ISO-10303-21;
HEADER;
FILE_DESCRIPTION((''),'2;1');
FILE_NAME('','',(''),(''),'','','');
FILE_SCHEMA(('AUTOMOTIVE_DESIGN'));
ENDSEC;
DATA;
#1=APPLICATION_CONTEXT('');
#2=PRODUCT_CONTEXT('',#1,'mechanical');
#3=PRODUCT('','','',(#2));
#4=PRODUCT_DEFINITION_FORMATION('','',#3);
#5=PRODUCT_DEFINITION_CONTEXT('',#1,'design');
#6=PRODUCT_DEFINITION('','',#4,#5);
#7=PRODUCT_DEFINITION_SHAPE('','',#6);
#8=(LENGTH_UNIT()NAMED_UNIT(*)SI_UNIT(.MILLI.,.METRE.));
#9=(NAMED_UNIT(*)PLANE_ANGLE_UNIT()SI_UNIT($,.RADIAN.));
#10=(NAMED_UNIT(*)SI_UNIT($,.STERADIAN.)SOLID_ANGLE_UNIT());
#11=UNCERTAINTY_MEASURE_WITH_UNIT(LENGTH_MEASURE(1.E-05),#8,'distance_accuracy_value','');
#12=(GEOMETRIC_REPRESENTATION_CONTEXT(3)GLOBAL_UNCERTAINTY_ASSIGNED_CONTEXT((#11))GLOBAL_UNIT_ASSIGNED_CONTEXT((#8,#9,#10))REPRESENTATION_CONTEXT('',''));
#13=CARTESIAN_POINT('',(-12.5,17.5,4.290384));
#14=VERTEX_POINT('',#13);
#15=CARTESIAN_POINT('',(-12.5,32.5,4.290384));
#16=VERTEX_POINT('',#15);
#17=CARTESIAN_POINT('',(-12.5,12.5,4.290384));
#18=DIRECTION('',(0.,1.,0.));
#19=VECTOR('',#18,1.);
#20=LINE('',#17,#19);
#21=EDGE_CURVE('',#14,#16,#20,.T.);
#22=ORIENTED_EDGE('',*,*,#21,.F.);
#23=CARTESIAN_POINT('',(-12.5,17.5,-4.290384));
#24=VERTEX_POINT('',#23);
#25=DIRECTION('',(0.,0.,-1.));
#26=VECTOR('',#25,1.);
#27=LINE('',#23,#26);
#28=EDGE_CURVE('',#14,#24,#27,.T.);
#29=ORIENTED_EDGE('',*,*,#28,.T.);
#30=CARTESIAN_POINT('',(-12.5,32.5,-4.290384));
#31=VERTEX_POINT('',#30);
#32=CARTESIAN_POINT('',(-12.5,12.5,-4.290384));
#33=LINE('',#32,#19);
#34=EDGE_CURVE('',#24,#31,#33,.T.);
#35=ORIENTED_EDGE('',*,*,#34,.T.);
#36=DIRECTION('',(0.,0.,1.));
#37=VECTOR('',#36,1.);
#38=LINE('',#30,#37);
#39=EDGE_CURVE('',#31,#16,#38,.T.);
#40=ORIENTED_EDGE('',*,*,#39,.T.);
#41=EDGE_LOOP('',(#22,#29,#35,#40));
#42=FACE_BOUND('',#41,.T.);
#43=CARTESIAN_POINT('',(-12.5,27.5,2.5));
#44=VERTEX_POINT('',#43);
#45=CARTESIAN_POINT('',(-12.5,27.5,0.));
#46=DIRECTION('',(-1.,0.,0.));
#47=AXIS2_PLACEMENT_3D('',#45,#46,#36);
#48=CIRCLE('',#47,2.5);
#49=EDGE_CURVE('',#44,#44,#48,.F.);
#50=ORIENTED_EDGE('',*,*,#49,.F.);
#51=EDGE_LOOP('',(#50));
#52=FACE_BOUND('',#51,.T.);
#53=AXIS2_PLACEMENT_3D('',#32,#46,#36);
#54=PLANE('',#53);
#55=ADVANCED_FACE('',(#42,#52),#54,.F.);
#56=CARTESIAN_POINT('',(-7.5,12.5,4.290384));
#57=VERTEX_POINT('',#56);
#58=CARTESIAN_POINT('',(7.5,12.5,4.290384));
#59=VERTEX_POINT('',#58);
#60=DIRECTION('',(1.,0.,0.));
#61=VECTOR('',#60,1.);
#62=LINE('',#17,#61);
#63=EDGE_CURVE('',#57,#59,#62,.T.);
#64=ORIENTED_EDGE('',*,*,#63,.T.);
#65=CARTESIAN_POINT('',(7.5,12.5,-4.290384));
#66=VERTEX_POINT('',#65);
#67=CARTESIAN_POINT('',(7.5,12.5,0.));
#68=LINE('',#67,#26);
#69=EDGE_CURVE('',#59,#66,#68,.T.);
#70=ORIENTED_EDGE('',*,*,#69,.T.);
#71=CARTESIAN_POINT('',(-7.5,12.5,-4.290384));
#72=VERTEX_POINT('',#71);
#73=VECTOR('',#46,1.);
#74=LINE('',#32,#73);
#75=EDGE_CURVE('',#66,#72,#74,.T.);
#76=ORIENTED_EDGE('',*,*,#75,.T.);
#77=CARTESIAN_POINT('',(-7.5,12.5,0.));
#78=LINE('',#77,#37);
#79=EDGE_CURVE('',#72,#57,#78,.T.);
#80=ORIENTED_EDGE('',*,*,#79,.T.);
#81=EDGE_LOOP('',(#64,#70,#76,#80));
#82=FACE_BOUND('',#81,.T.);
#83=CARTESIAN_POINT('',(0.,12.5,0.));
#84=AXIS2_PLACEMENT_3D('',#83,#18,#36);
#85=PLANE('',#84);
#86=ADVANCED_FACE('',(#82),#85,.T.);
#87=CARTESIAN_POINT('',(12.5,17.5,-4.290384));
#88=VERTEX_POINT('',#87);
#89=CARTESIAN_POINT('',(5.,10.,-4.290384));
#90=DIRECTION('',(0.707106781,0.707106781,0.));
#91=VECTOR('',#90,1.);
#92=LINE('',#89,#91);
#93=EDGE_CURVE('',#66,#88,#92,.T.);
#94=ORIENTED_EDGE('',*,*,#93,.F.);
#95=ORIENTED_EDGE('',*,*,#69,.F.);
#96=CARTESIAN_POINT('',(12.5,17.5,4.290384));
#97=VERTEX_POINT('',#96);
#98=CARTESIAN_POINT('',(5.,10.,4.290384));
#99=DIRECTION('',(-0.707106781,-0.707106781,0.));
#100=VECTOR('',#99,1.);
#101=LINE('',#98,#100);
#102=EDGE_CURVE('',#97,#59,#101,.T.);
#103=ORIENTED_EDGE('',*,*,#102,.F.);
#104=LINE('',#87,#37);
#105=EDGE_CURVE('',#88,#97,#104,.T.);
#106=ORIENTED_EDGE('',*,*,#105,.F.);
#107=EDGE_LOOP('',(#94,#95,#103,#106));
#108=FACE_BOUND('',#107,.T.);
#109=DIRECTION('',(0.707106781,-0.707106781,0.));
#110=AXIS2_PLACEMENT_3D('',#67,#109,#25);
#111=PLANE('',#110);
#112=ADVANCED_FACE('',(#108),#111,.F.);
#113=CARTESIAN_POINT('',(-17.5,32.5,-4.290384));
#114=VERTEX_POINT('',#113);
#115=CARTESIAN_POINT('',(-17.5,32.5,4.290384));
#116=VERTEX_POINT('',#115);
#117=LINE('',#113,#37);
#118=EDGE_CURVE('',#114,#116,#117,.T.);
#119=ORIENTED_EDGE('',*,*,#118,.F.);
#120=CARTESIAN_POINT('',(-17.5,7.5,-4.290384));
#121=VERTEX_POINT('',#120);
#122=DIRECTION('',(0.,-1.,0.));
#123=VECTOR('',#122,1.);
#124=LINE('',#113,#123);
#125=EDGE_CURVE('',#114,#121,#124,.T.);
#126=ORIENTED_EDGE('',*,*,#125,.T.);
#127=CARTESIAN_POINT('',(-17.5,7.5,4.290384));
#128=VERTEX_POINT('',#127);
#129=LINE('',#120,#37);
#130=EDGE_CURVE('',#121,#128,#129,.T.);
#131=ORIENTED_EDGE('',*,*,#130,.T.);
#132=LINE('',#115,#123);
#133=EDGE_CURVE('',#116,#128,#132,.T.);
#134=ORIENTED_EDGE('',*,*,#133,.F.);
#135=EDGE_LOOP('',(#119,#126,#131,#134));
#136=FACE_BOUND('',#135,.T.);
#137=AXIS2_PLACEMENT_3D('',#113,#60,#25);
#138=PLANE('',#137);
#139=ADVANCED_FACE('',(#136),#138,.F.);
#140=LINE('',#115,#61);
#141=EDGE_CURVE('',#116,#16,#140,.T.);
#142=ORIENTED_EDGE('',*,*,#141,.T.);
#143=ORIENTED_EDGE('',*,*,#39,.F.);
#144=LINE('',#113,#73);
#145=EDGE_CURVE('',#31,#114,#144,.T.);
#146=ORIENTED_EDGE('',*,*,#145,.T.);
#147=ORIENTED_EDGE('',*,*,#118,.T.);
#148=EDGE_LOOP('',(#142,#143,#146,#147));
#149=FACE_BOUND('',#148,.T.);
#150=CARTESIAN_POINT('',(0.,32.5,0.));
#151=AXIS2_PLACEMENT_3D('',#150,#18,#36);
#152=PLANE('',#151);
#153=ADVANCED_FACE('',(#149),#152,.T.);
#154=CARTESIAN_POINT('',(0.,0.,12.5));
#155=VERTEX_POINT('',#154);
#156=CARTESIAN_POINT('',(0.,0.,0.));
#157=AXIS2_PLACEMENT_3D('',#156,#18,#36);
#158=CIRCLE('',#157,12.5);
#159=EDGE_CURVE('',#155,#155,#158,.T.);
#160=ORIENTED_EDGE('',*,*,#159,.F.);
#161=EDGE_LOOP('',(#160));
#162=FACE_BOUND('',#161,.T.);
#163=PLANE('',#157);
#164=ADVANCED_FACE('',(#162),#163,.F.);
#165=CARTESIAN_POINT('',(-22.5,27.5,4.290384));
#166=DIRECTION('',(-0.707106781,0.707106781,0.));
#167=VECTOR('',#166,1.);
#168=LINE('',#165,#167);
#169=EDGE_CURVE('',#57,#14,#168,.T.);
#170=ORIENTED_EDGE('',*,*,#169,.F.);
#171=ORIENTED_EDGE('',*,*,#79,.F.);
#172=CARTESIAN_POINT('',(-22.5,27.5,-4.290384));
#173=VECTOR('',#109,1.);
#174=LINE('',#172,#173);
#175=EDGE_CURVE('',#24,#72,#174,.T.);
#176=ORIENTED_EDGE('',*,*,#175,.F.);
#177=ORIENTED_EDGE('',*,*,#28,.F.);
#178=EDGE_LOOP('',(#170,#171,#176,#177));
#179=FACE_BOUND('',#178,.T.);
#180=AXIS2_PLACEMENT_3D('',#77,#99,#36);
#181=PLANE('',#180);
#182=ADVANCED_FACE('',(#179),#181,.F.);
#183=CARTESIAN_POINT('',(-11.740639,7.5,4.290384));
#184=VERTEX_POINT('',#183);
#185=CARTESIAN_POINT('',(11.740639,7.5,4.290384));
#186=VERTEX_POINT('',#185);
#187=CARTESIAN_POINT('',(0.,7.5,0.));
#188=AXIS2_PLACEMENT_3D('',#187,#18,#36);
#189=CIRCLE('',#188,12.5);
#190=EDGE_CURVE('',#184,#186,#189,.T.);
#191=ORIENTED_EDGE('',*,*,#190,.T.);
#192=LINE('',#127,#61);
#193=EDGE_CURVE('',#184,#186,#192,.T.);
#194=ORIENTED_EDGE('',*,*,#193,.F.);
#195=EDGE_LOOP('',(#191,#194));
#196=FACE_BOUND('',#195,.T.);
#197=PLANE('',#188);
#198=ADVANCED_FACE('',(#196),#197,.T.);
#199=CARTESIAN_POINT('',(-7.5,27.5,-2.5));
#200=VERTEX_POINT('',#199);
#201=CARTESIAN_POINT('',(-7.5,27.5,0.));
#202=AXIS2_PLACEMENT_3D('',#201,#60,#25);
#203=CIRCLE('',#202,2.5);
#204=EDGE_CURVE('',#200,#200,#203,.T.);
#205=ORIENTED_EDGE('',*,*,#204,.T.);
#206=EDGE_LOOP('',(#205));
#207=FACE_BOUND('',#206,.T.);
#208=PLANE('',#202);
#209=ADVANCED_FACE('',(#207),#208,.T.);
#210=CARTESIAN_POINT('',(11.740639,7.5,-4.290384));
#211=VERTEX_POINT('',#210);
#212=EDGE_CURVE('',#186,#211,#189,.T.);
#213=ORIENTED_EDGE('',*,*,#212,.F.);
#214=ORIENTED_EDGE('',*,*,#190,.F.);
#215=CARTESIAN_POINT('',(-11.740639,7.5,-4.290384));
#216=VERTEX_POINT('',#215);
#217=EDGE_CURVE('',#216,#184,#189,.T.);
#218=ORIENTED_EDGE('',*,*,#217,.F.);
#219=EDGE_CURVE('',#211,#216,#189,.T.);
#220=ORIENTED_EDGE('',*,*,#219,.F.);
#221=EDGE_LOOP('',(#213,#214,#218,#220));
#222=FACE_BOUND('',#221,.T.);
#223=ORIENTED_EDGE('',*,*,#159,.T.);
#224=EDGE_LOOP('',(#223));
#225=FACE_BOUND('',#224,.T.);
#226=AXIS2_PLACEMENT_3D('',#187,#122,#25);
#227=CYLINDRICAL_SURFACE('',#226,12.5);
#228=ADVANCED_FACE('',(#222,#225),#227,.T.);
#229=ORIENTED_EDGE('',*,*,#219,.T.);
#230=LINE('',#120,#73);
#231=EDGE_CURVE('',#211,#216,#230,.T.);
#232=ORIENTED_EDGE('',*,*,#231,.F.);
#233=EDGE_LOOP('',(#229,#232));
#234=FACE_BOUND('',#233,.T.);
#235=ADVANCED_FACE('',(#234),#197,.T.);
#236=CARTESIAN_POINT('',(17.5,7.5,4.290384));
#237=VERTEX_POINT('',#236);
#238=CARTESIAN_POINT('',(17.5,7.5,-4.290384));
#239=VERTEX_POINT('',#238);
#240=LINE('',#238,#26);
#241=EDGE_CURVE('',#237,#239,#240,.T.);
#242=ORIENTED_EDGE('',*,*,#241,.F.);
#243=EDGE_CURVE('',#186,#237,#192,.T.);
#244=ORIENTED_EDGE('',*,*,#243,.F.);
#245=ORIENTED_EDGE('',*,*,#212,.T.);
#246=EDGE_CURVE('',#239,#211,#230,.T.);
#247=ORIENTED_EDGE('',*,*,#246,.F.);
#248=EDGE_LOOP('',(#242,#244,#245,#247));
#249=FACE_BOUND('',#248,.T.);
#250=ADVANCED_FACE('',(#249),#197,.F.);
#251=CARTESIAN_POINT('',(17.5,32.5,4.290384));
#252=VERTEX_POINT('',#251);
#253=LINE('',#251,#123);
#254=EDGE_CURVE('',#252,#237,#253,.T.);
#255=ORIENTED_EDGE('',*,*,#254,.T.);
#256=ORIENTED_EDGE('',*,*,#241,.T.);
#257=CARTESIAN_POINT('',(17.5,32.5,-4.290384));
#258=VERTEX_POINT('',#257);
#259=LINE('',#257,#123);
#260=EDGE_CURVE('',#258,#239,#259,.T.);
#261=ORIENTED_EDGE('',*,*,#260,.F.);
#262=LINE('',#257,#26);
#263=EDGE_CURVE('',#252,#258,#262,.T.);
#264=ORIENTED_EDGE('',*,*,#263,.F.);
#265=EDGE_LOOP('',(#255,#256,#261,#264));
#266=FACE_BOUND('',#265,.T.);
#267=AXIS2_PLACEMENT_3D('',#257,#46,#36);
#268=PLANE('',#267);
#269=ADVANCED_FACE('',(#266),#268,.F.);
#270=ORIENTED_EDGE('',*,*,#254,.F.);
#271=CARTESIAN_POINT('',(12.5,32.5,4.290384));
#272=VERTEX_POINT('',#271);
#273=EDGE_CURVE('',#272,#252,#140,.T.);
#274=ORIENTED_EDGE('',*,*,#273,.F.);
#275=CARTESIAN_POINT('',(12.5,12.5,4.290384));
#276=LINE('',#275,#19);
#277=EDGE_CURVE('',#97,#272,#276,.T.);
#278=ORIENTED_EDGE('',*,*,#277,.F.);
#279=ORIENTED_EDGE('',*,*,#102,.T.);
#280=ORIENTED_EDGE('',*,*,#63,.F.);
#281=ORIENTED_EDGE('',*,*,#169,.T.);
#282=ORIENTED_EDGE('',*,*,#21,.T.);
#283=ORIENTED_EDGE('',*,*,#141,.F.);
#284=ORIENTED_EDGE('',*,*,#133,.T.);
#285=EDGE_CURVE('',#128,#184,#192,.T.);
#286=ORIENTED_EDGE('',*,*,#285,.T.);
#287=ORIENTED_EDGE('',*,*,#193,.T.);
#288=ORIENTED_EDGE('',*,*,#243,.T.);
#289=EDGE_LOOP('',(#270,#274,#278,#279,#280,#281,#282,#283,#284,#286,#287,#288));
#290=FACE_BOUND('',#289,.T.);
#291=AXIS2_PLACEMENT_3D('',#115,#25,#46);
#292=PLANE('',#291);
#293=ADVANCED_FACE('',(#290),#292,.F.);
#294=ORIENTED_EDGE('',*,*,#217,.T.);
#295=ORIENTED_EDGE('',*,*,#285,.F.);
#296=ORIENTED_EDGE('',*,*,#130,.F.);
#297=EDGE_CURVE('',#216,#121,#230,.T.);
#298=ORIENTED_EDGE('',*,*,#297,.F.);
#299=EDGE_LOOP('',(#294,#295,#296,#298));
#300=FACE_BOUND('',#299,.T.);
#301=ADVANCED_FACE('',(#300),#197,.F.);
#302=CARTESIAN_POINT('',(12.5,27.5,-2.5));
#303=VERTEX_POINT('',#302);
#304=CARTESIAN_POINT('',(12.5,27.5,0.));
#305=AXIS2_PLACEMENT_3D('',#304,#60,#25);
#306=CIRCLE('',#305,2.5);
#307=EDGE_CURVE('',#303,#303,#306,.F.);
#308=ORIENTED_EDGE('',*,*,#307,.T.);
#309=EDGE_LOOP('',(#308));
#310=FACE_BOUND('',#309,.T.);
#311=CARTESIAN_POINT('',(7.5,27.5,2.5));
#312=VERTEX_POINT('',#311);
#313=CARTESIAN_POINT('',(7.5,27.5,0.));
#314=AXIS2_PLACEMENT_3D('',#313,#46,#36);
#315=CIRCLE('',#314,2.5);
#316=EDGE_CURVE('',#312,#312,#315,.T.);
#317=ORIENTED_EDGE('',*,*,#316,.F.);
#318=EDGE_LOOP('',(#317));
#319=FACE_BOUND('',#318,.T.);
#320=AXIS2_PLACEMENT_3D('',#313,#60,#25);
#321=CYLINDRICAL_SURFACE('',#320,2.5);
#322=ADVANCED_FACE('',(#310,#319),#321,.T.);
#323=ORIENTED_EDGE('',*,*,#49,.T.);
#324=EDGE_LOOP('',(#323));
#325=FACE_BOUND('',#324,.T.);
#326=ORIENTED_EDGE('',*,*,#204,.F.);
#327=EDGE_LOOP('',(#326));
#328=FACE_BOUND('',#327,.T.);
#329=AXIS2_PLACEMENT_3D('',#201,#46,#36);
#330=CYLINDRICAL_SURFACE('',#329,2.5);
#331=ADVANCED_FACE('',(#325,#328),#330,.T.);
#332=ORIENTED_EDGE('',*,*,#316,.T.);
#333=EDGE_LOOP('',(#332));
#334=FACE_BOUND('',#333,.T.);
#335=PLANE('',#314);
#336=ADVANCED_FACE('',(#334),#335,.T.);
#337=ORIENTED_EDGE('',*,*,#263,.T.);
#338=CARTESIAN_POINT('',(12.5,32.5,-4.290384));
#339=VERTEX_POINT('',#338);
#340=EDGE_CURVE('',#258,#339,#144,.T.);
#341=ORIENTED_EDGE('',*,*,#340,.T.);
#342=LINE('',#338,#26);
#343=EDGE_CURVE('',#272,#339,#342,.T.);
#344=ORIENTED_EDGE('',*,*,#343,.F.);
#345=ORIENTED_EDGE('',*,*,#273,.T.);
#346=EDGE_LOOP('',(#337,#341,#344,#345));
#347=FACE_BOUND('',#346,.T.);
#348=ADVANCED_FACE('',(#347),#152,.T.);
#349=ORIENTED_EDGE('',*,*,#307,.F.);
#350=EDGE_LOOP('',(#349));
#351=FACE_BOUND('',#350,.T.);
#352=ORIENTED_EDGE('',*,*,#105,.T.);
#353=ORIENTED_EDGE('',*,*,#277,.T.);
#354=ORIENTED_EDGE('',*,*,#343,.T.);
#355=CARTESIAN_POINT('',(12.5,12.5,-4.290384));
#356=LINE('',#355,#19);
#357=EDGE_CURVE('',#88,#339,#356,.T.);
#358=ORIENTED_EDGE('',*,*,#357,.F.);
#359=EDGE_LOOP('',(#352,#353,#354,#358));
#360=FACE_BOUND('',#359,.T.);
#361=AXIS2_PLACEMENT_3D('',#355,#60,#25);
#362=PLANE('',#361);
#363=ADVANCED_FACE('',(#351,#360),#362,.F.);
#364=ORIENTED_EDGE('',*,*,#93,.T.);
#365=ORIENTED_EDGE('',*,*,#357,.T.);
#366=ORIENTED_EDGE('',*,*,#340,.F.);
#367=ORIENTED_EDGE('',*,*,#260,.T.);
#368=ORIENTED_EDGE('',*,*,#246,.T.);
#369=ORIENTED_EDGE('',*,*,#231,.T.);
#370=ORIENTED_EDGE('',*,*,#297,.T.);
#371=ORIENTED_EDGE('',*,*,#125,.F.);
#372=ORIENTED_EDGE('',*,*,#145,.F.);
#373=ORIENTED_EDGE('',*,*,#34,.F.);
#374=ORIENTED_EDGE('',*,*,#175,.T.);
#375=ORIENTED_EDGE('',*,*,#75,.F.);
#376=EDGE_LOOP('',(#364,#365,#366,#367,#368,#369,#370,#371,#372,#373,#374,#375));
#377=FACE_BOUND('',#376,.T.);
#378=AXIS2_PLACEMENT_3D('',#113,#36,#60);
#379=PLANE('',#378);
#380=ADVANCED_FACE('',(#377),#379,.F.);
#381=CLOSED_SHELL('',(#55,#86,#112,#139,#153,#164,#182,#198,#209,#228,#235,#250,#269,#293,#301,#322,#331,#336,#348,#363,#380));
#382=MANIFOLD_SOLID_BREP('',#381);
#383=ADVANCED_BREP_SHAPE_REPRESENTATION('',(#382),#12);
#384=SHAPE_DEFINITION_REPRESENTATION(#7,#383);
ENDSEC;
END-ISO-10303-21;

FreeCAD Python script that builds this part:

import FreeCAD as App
import Part
import Sketcher
from FreeCAD import Vector
Q = App.Units.Quantity


def edges_at(feature, points):
    """Names of the edges that pass closest to the given points."""
    edges = feature.Shape.Edges
    near = lambda p: min(range(len(edges)), key=lambda i: edges[i].distToShape(Part.Vertex(*p))[0])
    return sorted({f"Edge{near(p) + 1}" for p in points})

doc = App.newDocument("Part")
body = doc.addObject("PartDesign::Body", "Body")

sketch1 = doc.addObject("Sketcher::SketchObject", "Sketch")
body.addObject(sketch1)
sketch1.AttachmentSupport = (doc.XZ_Plane, [""])
sketch1.MapMode = "FlatFace"
sketch1.addGeometry(Part.Circle(Vector(0, 0, 0), Vector(0, 0, 1), 12), False)
sketch1.addConstraint([
    Sketcher.Constraint("Coincident", 0, 3, -1, 1),
    Sketcher.Constraint("Diameter", 0, Q("25 mm")),
])
pad1 = doc.addObject("PartDesign::Pad", "Pad")
body.addObject(pad1)
pad1.Profile = sketch1
pad1.Length = 7.5
pad1.Reversed = True

sketch2 = doc.addObject("Sketcher::SketchObject", "Sketch001")
body.addObject(sketch2)
sketch2.AttachmentSupport = (doc.XZ_Plane, [""])
sketch2.MapMode = "FlatFace"
sketch2.AttachmentOffset = App.Placement(Vector(0, 0, -7.5), App.Rotation())
sketch2.addGeometry([
    Part.LineSegment(Vector(-18, -4, 0), Vector(-18, 4, 0)),
    Part.LineSegment(Vector(-18, 4, 0), Vector(18, 4, 0)),
    Part.LineSegment(Vector(18, 4, 0), Vector(18, -4, 0)),
    Part.LineSegment(Vector(18, -4, 0), Vector(-18, -4, 0)),
], False)
sketch2.addConstraint([
    Sketcher.Constraint("Coincident", 0, 2, 1, 1),
    Sketcher.Constraint("Coincident", 1, 2, 2, 1),
    Sketcher.Constraint("Coincident", 2, 2, 3, 1),
    Sketcher.Constraint("Coincident", 3, 2, 0, 1),
    Sketcher.Constraint("Vertical", 0),
    Sketcher.Constraint("Horizontal", 1),
    Sketcher.Constraint("Vertical", 2),
    Sketcher.Constraint("Horizontal", 3),
    Sketcher.Constraint("Symmetric", 0, 2, 2, 2, -1, 1),
    Sketcher.Constraint("DistanceX", 1, 1, 1, 2, Q("35 mm")),
    Sketcher.Constraint("DistanceY", 0, 1, 0, 2, Q("8.580768 mm")),
])
pad2 = doc.addObject("PartDesign::Pad", "Pad001")
body.addObject(pad2)
pad2.Profile = sketch2
pad2.Length = 25
pad2.Reversed = True

sketch3 = doc.addObject("Sketcher::SketchObject", "Sketch002")
body.addObject(sketch3)
sketch3.AttachmentSupport = (doc.XZ_Plane, [""])
sketch3.MapMode = "FlatFace"
sketch3.AttachmentOffset = App.Placement(Vector(0, 0, -32.5), App.Rotation())
sketch3.addGeometry([
    Part.LineSegment(Vector(-12, -4, 0), Vector(-12, 4, 0)),
    Part.LineSegment(Vector(-12, 4, 0), Vector(12, 4, 0)),
    Part.LineSegment(Vector(12, 4, 0), Vector(12, -4, 0)),
    Part.LineSegment(Vector(12, -4, 0), Vector(-12, -4, 0)),
], False)
sketch3.addConstraint([
    Sketcher.Constraint("Coincident", 0, 2, 1, 1),
    Sketcher.Constraint("Coincident", 1, 2, 2, 1),
    Sketcher.Constraint("Coincident", 2, 2, 3, 1),
    Sketcher.Constraint("Coincident", 3, 2, 0, 1),
    Sketcher.Constraint("Vertical", 0),
    Sketcher.Constraint("Horizontal", 1),
    Sketcher.Constraint("Vertical", 2),
    Sketcher.Constraint("Horizontal", 3),
    Sketcher.Constraint("Symmetric", 0, 2, 2, 2, -1, 1),
    Sketcher.Constraint("DistanceX", 1, 1, 1, 2, Q("25 mm")),
    Sketcher.Constraint("DistanceY", 0, 1, 0, 2, Q("8.580768 mm")),
])
pocket1 = doc.addObject("PartDesign::Pocket", "Pocket")
body.addObject(pocket1)
pocket1.Profile = sketch3
pocket1.Length = 20
pocket1.Reversed = True

sketch4 = doc.addObject("Sketcher::SketchObject", "Sketch003")
body.addObject(sketch4)
sketch4.AttachmentSupport = (doc.YZ_Plane, [""])
sketch4.MapMode = "FlatFace"
sketch4.AttachmentOffset = App.Placement(Vector(0, 0, -12.5), App.Rotation())
sketch4.addGeometry(Part.Circle(Vector(27.5, 0, 0), Vector(0, 0, 1), 2.5), False)
sketch4.addConstraint([
    Sketcher.Constraint("PointOnObject", 0, 3, -1),
    Sketcher.Constraint("Diameter", 0, Q("5 mm")),
    Sketcher.Constraint("DistanceX", -1, 1, 0, 3, Q("27.5 mm")),
])
pad3 = doc.addObject("PartDesign::Pad", "Pad002")
body.addObject(pad3)
pad3.Profile = sketch4
pad3.Length = 5

sketch5 = doc.addObject("Sketcher::SketchObject", "Sketch004")
body.addObject(sketch5)
sketch5.AttachmentSupport = (doc.YZ_Plane, [""])
sketch5.MapMode = "FlatFace"
sketch5.AttachmentOffset = App.Placement(Vector(0, 0, 12.5), App.Rotation())
sketch5.addGeometry(Part.Circle(Vector(27.5, 0, 0), Vector(0, 0, 1), 2.5), False)
sketch5.addConstraint([
    Sketcher.Constraint("PointOnObject", 0, 3, -1),
    Sketcher.Constraint("Diameter", 0, Q("5 mm")),
    Sketcher.Constraint("DistanceX", -1, 1, 0, 3, Q("27.5 mm")),
])
pad4 = doc.addObject("PartDesign::Pad", "Pad003")
body.addObject(pad4)
pad4.Profile = sketch5
pad4.Length = 5
pad4.Reversed = True
doc.recompute()

chamfer = doc.addObject("PartDesign::Chamfer", "Chamfer")
body.addObject(chamfer)
chamfer.Base = (pad4, edges_at(pad4, [(-12.5, 12.5, 0)]))
chamfer.Size = 5
doc.recompute()

chamfer2 = doc.addObject("PartDesign::Chamfer", "Chamfer001")
body.addObject(chamfer2)
chamfer2.Base = (chamfer, edges_at(chamfer, [(12.5, 12.5, 0)]))
chamfer2.Size = 5

doc.recompute()
